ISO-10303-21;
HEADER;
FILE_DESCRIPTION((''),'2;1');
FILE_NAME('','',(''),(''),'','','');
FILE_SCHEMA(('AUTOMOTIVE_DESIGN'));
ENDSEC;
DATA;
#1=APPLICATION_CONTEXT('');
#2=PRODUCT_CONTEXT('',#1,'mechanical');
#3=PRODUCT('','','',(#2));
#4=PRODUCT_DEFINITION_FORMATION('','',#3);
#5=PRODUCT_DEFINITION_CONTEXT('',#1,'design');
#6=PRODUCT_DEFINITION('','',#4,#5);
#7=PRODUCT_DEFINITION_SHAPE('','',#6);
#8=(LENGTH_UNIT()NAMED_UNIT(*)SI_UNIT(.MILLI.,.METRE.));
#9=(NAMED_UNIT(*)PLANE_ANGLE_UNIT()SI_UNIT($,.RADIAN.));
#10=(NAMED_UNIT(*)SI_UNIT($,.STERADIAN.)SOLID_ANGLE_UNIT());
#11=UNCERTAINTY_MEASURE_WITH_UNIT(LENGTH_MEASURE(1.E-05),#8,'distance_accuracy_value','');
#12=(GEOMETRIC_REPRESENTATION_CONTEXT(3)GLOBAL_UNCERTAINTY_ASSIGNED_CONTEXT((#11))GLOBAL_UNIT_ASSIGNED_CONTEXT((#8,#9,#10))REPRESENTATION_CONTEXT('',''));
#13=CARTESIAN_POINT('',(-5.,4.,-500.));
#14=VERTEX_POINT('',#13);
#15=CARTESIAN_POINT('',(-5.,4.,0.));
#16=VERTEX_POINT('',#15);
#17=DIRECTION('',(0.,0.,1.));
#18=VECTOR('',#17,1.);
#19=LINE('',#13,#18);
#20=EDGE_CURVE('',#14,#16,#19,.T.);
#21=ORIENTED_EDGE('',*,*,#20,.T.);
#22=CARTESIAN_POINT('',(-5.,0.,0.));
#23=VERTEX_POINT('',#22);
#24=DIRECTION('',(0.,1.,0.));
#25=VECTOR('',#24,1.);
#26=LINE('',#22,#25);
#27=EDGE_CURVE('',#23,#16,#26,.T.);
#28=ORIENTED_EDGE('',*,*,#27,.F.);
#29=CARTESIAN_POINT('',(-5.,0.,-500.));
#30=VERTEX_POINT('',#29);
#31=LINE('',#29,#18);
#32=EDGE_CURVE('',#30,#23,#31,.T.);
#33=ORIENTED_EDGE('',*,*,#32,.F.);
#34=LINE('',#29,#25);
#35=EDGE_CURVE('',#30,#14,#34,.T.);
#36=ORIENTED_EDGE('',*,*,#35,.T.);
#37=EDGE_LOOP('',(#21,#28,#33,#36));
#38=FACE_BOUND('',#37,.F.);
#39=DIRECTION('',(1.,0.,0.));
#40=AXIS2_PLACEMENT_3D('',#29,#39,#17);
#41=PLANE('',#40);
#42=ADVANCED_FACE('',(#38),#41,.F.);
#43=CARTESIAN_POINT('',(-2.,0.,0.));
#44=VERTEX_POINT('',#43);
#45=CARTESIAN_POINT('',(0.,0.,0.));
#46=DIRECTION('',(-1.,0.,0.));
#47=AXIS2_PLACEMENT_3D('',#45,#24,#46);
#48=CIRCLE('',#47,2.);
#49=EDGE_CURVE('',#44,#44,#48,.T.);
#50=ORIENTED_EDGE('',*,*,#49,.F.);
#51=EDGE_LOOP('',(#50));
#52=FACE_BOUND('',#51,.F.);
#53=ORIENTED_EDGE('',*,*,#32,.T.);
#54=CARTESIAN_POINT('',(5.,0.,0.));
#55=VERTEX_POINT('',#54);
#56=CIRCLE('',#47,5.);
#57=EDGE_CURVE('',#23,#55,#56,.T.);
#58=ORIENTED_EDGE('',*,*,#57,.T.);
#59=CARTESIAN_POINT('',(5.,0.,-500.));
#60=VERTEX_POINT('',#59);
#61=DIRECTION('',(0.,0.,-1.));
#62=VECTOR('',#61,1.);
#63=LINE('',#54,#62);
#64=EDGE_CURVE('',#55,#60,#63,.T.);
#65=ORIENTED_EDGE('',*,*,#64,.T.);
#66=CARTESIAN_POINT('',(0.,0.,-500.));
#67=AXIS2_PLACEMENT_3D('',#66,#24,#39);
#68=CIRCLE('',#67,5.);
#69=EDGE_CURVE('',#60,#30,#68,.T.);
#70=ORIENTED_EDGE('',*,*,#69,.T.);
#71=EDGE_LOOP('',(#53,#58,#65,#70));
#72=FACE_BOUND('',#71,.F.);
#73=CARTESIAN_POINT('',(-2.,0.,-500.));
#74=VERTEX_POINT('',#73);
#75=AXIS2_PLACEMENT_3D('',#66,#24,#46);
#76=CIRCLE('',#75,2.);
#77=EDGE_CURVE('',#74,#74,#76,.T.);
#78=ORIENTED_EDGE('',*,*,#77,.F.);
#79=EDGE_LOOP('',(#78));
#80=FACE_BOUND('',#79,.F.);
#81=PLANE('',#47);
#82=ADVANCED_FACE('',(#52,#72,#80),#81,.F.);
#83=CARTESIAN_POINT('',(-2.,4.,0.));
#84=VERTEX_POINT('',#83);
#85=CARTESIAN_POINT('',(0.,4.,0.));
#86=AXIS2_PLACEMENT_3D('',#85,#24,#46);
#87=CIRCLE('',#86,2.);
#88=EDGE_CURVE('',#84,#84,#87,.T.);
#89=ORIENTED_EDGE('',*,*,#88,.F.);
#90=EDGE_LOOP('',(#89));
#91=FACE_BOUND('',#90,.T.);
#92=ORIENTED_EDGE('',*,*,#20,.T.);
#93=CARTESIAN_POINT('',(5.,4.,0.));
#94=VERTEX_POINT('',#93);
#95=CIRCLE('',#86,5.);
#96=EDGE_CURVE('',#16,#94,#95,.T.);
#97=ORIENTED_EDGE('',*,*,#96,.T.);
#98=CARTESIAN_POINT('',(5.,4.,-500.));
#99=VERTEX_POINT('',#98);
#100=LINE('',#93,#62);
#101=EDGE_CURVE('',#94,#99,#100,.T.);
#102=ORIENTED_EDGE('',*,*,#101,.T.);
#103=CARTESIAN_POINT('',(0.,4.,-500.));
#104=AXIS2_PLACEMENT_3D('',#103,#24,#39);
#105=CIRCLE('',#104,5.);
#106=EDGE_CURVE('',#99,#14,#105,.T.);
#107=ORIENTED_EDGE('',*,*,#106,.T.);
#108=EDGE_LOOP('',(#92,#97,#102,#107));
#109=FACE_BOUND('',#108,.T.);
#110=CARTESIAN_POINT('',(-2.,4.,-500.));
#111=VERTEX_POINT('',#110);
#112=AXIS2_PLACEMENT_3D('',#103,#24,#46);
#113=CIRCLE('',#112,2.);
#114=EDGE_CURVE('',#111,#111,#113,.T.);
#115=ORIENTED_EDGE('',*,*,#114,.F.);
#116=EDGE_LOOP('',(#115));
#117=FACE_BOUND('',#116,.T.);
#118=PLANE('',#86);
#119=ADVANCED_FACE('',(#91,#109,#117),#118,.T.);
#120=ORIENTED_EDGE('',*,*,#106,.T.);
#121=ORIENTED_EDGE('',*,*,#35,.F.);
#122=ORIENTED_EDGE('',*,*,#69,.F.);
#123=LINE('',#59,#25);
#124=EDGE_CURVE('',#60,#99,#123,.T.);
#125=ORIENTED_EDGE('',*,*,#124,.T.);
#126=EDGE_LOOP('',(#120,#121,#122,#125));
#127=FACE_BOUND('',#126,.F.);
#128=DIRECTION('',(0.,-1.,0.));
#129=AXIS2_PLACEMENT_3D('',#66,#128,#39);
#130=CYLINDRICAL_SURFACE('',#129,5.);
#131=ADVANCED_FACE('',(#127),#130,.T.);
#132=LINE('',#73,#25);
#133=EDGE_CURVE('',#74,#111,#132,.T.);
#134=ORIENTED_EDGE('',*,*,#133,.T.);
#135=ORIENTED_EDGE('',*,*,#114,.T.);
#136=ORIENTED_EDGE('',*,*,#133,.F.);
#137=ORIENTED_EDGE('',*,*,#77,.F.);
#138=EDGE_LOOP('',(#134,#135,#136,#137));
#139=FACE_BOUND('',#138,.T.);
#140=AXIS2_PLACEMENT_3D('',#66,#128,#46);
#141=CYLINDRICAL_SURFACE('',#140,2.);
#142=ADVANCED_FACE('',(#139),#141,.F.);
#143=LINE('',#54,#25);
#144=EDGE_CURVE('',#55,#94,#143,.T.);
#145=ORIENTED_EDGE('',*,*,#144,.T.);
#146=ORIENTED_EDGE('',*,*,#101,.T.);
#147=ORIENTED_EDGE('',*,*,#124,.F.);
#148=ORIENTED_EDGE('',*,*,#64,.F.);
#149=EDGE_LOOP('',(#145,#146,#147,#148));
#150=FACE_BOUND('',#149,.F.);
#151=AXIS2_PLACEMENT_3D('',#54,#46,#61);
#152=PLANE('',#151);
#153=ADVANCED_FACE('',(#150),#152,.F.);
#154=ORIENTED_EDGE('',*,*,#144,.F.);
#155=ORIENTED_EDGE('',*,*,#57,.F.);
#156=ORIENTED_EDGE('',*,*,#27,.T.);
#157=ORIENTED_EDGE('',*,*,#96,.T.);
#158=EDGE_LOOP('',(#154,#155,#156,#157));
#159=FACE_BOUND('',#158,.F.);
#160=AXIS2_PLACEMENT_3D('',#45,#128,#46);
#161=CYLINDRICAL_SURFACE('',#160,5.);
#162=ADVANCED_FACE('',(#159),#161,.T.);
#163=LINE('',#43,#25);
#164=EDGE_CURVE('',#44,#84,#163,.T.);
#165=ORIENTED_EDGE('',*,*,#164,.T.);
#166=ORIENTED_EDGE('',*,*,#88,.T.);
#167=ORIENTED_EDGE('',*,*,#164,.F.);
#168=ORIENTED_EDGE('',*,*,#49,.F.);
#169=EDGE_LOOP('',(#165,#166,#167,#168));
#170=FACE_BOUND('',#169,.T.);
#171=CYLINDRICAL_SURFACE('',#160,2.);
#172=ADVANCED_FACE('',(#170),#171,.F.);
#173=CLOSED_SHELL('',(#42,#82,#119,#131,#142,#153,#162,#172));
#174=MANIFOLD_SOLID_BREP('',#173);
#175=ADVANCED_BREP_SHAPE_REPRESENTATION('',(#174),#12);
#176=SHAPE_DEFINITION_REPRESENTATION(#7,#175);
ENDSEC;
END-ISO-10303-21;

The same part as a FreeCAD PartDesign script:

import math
import FreeCAD as App
import Part
import Sketcher

V = App.Vector

doc = App.newDocument("Part")
body = doc.addObject("PartDesign::Body", "Body")

# Sketch on XZ plane
sketch1 = body.newObject("Sketcher::SketchObject", "Sketch")
sketch1.AttachmentSupport = (doc.getObject("XZ_Plane"), [""])
sketch1.MapMode = "FlatFace"
sketch1.addGeometry([
    Part.ArcOfCircle(Part.Circle(V(0, 0, 0), V(0, 0, 1), 5), math.radians(0), math.radians(180)),  # 0
    Part.LineSegment(V(5, 0, 0), V(5, -500, 0)),  # 1
    Part.ArcOfCircle(Part.Circle(V(0, -500, 0), V(0, 0, 1), 5), math.radians(180), math.radians(360)),  # 2
    Part.LineSegment(V(-5, -500, 0), V(-5, 0, 0)),  # 3
    Part.Circle(V(0, -500, 0), V(0, 0, 1), 2),  # 4
    Part.Circle(V(0, 0, 0), V(0, 0, 1), 2),  # 5
], False)
sketch1.addConstraint([
    Sketcher.Constraint("Tangent", 0, 1, 1, 1),
    Sketcher.Constraint("Tangent", 1, 2, 2, 2),
    Sketcher.Constraint("Tangent", 2, 1, 3, 1),
    Sketcher.Constraint("Tangent", 3, 2, 0, 2),
    Sketcher.Constraint("Vertical", 1),
    Sketcher.Constraint("Vertical", 3),
    Sketcher.Constraint("Coincident", 0, 3, -1, 1),
    Sketcher.Constraint("Coincident", 5, 3, -1, 1),
    Sketcher.Constraint("Coincident", 4, 3, 2, 3),
    Sketcher.Constraint("Equal", 4, 5),
    Sketcher.Constraint("Diameter", 4, 4.0),
    Sketcher.Constraint("Radius", 0, 5.0),
    Sketcher.Constraint("DistanceY", 1, 2, 1, 1, 500.0),
])
pad1 = body.newObject("PartDesign::Pad", "Pad")
pad1.Profile = sketch1
pad1.Length = 4
pad1.Reversed = True

doc.recompute()
